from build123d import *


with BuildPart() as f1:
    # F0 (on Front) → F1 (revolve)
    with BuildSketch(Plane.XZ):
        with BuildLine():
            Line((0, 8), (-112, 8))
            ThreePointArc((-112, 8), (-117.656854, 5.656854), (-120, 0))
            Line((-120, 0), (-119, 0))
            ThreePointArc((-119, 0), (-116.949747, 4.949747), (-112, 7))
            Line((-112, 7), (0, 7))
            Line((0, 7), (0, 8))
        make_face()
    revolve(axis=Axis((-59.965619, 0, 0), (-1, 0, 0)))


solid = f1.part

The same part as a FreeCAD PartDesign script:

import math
import FreeCAD as App
import Part
import Sketcher
from FreeCAD import Vector
Q = App.Units.Quantity

doc = App.newDocument("Part")
body = doc.addObject("PartDesign::Body", "Body")

sketch1 = doc.addObject("Sketcher::SketchObject", "Sketch")
body.addObject(sketch1)
sketch1.AttachmentSupport = (doc.XZ_Plane, [""])
sketch1.MapMode = "FlatFace"
sketch1.addGeometry([
    Part.LineSegment(Vector(0, 8, 0), Vector(-112, 8, 0)),
    Part.ArcOfCircle(Part.Circle(Vector(-112, 0, 0), Vector(0, 0, 1), 8), math.radians(90), math.radians(180)),
    Part.LineSegment(Vector(-120, 0, 0), Vector(-119, 0, 0)),
    Part.ArcOfCircle(Part.Circle(Vector(-112, 0, 0), Vector(0, 0, 1), 7), math.radians(90), math.radians(180)),
    Part.LineSegment(Vector(-112, 7, 0), Vector(0, 7, 0)),
    Part.LineSegment(Vector(0, 7, 0), Vector(0, 8, 0)),
], False)
sketch1.addConstraint([
    Sketcher.Constraint("Tangent", 0, 2, 1, 1),
    Sketcher.Constraint("Coincident", 1, 2, 2, 1),
    Sketcher.Constraint("Coincident", 2, 2, 3, 2),
    Sketcher.Constraint("Tangent", 3, 1, 4, 1),
    Sketcher.Constraint("Coincident", 4, 2, 5, 1),
    Sketcher.Constraint("Coincident", 5, 2, 0, 1),
    Sketcher.Constraint("Horizontal", 0),
    Sketcher.Constraint("Horizontal", 2),
    Sketcher.Constraint("Horizontal", 4),
    Sketcher.Constraint("Vertical", 5),
    Sketcher.Constraint("Coincident", 3, 3, 1, 3),
    Sketcher.Constraint("PointOnObject", 1, 3, -1),
    Sketcher.Constraint("PointOnObject", 1, 2, -1),
    Sketcher.Constraint("PointOnObject", 4, 2, -2),
    Sketcher.Constraint("Radius", 1, Q("8.000001 mm")),
    Sketcher.Constraint("Radius", 3, Q("7.000002 mm")),
    Sketcher.Constraint("DistanceX", 0, 2, 0, 1, Q("112 mm")),
])
revolution = doc.addObject("PartDesign::Revolution", "Revolution")
body.addObject(revolution)
revolution.Profile = sketch1
revolution.ReferenceAxis = (sketch1, ["H_Axis"])
revolution.Angle = 360

doc.recompute()
